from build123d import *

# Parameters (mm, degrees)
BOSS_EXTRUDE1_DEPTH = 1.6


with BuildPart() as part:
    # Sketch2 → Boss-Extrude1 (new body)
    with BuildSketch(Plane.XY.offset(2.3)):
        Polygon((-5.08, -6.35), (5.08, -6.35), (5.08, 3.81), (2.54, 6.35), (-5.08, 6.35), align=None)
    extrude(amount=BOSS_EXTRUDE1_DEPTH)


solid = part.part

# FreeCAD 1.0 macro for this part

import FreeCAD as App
import Part
import Sketcher
Q = App.Units.Quantity


def add_polygon(sketch, points):
    """Adds a closed chain of lines whose ends are joined by coincident constraints."""
    first, n = sketch.GeometryCount, len(points)
    for a, b in zip(points, points[1:] + points[:1]):
        sketch.addGeometry(Part.LineSegment(App.Vector(*a, 0), App.Vector(*b, 0)), False)
    for i in range(n):
        sketch.addConstraint(Sketcher.Constraint("Coincident", first + i, 2, first + (i + 1) % n, 1))

doc = App.newDocument("Part")
body = doc.addObject("PartDesign::Body", "Body")

sketch1 = body.newObject("Sketcher::SketchObject", "Sketch")
sketch1.AttachmentSupport = (doc.getObject("XY_Plane"), [""])
sketch1.MapMode = "FlatFace"
sketch1.AttachmentOffset = App.Placement(App.Vector(0, 0, 2.3), App.Rotation())
add_polygon(sketch1, [(-5.1, -6.3), (5.1, -6.3), (5.1, 3.8), (2.5, 6.3), (-5.1, 6.3)])
sketch1.addConstraint(Sketcher.Constraint("Horizontal", 0))
sketch1.addConstraint(Sketcher.Constraint("Vertical", 1))
sketch1.addConstraint(Sketcher.Constraint("Horizontal", 3))
sketch1.addConstraint(Sketcher.Constraint("Vertical", 4))
sketch1.addConstraint(Sketcher.Constraint("Symmetric", 0, 2, 3, 2, -1, 1))
sketch1.addConstraint(Sketcher.Constraint("Equal", 0, 1))
sketch1.addConstraint(Sketcher.Constraint("DistanceX", 0, 1, 0, 2, Q("0.4 in")))
sketch1.addConstraint(Sketcher.Constraint("DistanceX", 3, 2, 3, 1, Q("0.3 in")))
sketch1.addConstraint(Sketcher.Constraint("DistanceY", 4, 2, 4, 1, Q("0.5 in")))
pad1 = body.newObject("PartDesign::Pad", "Pad")
pad1.Profile = sketch1
pad1.Length = 1.6

doc.recompute()
